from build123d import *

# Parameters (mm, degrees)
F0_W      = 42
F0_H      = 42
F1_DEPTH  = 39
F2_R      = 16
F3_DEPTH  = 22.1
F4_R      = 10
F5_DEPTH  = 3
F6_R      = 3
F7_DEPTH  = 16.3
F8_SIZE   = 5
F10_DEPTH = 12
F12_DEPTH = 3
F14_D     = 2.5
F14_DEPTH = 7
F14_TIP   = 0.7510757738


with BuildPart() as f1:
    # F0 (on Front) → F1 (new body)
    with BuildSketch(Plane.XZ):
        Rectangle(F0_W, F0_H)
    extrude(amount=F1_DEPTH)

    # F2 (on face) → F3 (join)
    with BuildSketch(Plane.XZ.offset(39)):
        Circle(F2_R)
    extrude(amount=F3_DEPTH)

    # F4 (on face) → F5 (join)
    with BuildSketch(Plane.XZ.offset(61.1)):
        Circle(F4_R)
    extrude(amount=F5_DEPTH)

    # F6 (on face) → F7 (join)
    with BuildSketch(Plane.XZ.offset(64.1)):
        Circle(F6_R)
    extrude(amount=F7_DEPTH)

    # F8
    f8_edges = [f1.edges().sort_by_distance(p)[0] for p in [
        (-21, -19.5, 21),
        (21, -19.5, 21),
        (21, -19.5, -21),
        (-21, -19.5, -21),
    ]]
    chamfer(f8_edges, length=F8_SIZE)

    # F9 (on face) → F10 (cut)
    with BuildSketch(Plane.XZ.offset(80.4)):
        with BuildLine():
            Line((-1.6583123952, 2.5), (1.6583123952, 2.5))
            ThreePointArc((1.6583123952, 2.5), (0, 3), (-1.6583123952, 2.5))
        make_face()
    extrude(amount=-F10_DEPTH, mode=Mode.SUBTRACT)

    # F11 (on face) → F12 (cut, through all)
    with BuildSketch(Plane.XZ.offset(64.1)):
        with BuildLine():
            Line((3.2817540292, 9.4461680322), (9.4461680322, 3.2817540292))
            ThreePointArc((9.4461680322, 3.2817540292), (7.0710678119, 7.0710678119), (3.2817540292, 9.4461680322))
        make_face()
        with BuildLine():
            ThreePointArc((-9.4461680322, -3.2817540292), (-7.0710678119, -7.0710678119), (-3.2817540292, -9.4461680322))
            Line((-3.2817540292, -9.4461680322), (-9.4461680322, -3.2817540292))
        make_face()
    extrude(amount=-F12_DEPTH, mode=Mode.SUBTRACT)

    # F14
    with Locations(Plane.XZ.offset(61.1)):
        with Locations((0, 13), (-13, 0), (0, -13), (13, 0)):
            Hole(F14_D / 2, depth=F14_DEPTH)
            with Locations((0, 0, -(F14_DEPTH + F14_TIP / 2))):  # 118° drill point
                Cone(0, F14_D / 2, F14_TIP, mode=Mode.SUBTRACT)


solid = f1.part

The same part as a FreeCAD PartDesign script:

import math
import FreeCAD as App
import Part
import Sketcher
Q = App.Units.Quantity


def edges_at(feature, points):
    """Names of the edges that pass closest to the given points."""
    edges = feature.Shape.Edges
    near = lambda p: min(range(len(edges)), key=lambda i: edges[i].distToShape(Part.Vertex(*p))[0])
    return sorted({f"Edge{near(p) + 1}" for p in points})


def add_polygon(sketch, points):
    """Adds a closed chain of lines whose ends are joined by coincident constraints."""
    first, n = sketch.GeometryCount, len(points)
    for a, b in zip(points, points[1:] + points[:1]):
        sketch.addGeometry(Part.LineSegment(App.Vector(*a, 0), App.Vector(*b, 0)), False)
    for i in range(n):
        sketch.addConstraint(Sketcher.Constraint("Coincident", first + i, 2, first + (i + 1) % n, 1))

doc = App.newDocument("Part")
body = doc.addObject("PartDesign::Body", "Body")

# Sketch on XZ plane
sketch1 = body.newObject("Sketcher::SketchObject", "Sketch")
sketch1.AttachmentSupport = (doc.getObject("XZ_Plane"), [""])
sketch1.MapMode = "FlatFace"
add_polygon(sketch1, [(-21, 21), (-21, -21), (21, -21), (21, 21)])  # lines 0-3
sketch1.addConstraint(Sketcher.Constraint("Vertical", 0))
sketch1.addConstraint(Sketcher.Constraint("Horizontal", 1))
sketch1.addConstraint(Sketcher.Constraint("Vertical", 2))
sketch1.addConstraint(Sketcher.Constraint("Horizontal", 3))
sketch1.addConstraint(Sketcher.Constraint("Symmetric", 0, 2, 2, 2, -1, 1))
sketch1.addConstraint(Sketcher.Constraint("Equal", 3, 0))
sketch1.addConstraint(Sketcher.Constraint("DistanceX", 1, 1, 1, 2, 42.0))
pad1 = body.newObject("PartDesign::Pad", "Pad")
pad1.Profile = sketch1
pad1.Length = 39

# Sketch on XZ plane
sketch2 = body.newObject("Sketcher::SketchObject", "Sketch001")
sketch2.AttachmentSupport = (doc.getObject("XZ_Plane"), [""])
sketch2.MapMode = "FlatFace"
sketch2.AttachmentOffset = App.Placement(App.Vector(0, 0, 39), App.Rotation())
sketch2.addGeometry(Part.Circle(App.Vector(0, 0, 0), App.Vector(0, 0, 1), 16), False)
sketch2.addConstraint(Sketcher.Constraint("Coincident", 0, 3, -1, 1))
sketch2.addConstraint(Sketcher.Constraint("Diameter", 0, 32.0))
pad2 = body.newObject("PartDesign::Pad", "Pad001")
pad2.Profile = sketch2
pad2.Length = 22.1

# Sketch on XZ plane
sketch3 = body.newObject("Sketcher::SketchObject", "Sketch002")
sketch3.AttachmentSupport = (doc.getObject("XZ_Plane"), [""])
sketch3.MapMode = "FlatFace"
sketch3.AttachmentOffset = App.Placement(App.Vector(0, 0, 61.1), App.Rotation())
sketch3.addGeometry(Part.Circle(App.Vector(0, 0, 0), App.Vector(0, 0, 1), 10), False)
sketch3.addConstraint(Sketcher.Constraint("Coincident", 0, 3, -1, 1))
sketch3.addConstraint(Sketcher.Constraint("Diameter", 0, 20.0))
pad3 = body.newObject("PartDesign::Pad", "Pad002")
pad3.Profile = sketch3
pad3.Length = 3

# Sketch on XZ plane
sketch4 = body.newObject("Sketcher::SketchObject", "Sketch003")
sketch4.AttachmentSupport = (doc.getObject("XZ_Plane"), [""])
sketch4.MapMode = "FlatFace"
sketch4.AttachmentOffset = App.Placement(App.Vector(0, 0, 64.1), App.Rotation())
sketch4.addGeometry(Part.Circle(App.Vector(0, 0, 0), App.Vector(0, 0, 1), 3), False)
sketch4.addConstraint(Sketcher.Constraint("Coincident", 0, 3, -1, 1))
sketch4.addConstraint(Sketcher.Constraint("Diameter", 0, 6.0))
pad4 = body.newObject("PartDesign::Pad", "Pad003")
pad4.Profile = sketch4
pad4.Length = 16.3
doc.recompute()

chamfer = body.newObject("PartDesign::Chamfer", "Chamfer")
chamfer.Base = (pad4, edges_at(pad4, [
    (-21, -19.5, 21),
    (21, -19.5, 21),
    (21, -19.5, -21),
    (-21, -19.5, -21),
]))
chamfer.Size = 5

# Sketch on XZ plane
sketch5 = body.newObject("Sketcher::SketchObject", "Sketch004")
sketch5.AttachmentSupport = (doc.getObject("XZ_Plane"), [""])
sketch5.MapMode = "FlatFace"
sketch5.AttachmentOffset = App.Placement(App.Vector(0, 0, 80.4), App.Rotation())
sketch5.addGeometry(Part.LineSegment(App.Vector(-1.658312, 2.5, 0), App.Vector(1.658312, 2.5, 0)), False)
sketch5.addGeometry(Part.ArcOfCircle(Part.Circle(App.Vector(0, 0, 0), App.Vector(0, 0, 1), 3), math.radians(56.44269), math.radians(123.55731)), False)
sketch5.addConstraint(Sketcher.Constraint("Coincident", 0, 1, 1, 2))
sketch5.addConstraint(Sketcher.Constraint("Coincident", 1, 1, 0, 2))
sketch5.addConstraint(Sketcher.Constraint("Horizontal", 0))
sketch5.addConstraint(Sketcher.Constraint("Coincident", 1, 3, -1, 1))
sketch5.addConstraint(Sketcher.Constraint("Radius", 1, 3.0))
sketch5.addConstraint(Sketcher.Constraint("DistanceY", -1, 1, 0, 1, 2.5))
pocket1 = body.newObject("PartDesign::Pocket", "Pocket")
pocket1.Profile = sketch5
pocket1.Length = 12

# Sketch on XZ plane
sketch6 = body.newObject("Sketcher::SketchObject", "Sketch005")
sketch6.AttachmentSupport = (doc.getObject("XZ_Plane"), [""])
sketch6.MapMode = "FlatFace"
sketch6.AttachmentOffset = App.Placement(App.Vector(0, 0, 64.1), App.Rotation())
sketch6.addGeometry(Part.LineSegment(App.Vector(3.281754, 9.446168, 0), App.Vector(9.446168, 3.281754, 0)), False)
sketch6.addGeometry(Part.ArcOfCircle(Part.Circle(App.Vector(0, 0, 0), App.Vector(0, 0, 1), 10), math.radians(19.158067), math.radians(70.841933)), False)
sketch6.addGeometry(Part.ArcOfCircle(Part.Circle(App.Vector(0, 0, 0), App.Vector(0, 0, 1), 10), math.radians(-160.841933), math.radians(-109.158067)), False)
sketch6.addGeometry(Part.LineSegment(App.Vector(-3.281754, -9.446168, 0), App.Vector(-9.446168, -3.281754, 0)), False)
sketch6.addConstraint(Sketcher.Constraint("Coincident", 0, 1, 1, 2))
sketch6.addConstraint(Sketcher.Constraint("Coincident", 1, 1, 0, 2))
sketch6.addConstraint(Sketcher.Constraint("Coincident", 2, 1, 3, 2))
sketch6.addConstraint(Sketcher.Constraint("Coincident", 3, 1, 2, 2))
sketch6.addConstraint(Sketcher.Constraint("Coincident", 1, 3, -1, 1))
sketch6.addConstraint(Sketcher.Constraint("Coincident", 2, 3, -1, 1))
sketch6.addConstraint(Sketcher.Constraint("Equal", 1, 2))
sketch6.addConstraint(Sketcher.Constraint("Parallel", 0, 3))
sketch6.addConstraint(Sketcher.Constraint("Equal", 0, 3))
sketch6.addConstraint(Sketcher.Constraint("Radius", 1, 10.0))
sketch6.addConstraint(Sketcher.Constraint("Angle", 0, Q("-45 deg")))
sketch6.addConstraint(Sketcher.Constraint("DistanceY", -1, 1, 0, 1, 9.446168))
pocket2 = body.newObject("PartDesign::Pocket", "Pocket001")
pocket2.Profile = sketch6
pocket2.Length = 3

# Sketch on XZ plane
sketch7 = body.newObject("Sketcher::SketchObject", "Sketch006")
sketch7.AttachmentSupport = (doc.getObject("XZ_Plane"), [""])
sketch7.MapMode = "FlatFace"
sketch7.AttachmentOffset = App.Placement(App.Vector(0, 0, 61.1), App.Rotation())
sketch7.addGeometry(Part.Circle(App.Vector(0, 13, 0), App.Vector(0, 0, 1), 1.25), False)
sketch7.addGeometry(Part.Circle(App.Vector(-13, 0, 0), App.Vector(0, 0, 1), 1.25), False)
sketch7.addGeometry(Part.Circle(App.Vector(0, -13, 0), App.Vector(0, 0, 1), 1.25), False)
sketch7.addGeometry(Part.Circle(App.Vector(13, 0, 0), App.Vector(0, 0, 1), 1.25), False)
sketch7.addConstraint(Sketcher.Constraint("Equal", 0, 1))
sketch7.addConstraint(Sketcher.Constraint("Equal", 1, 2))
sketch7.addConstraint(Sketcher.Constraint("Equal", 2, 3))
sketch7.addConstraint(Sketcher.Constraint("Symmetric", 0, 3, 2, 3, -1, 1))
sketch7.addConstraint(Sketcher.Constraint("Symmetric", 1, 3, 3, 3, -1, 1))
sketch7.addConstraint(Sketcher.Constraint("PointOnObject", 0, 3, -2))
sketch7.addConstraint(Sketcher.Constraint("PointOnObject", 1, 3, -1))
sketch7.addConstraint(Sketcher.Constraint("Diameter", 0, 2.5))
sketch7.addConstraint(Sketcher.Constraint("DistanceY", -1, 1, 0, 3, 13.0))
sketch7.addConstraint(Sketcher.Constraint("DistanceX", 1, 3, -1, 1, 13.0))
doc.recompute()
hole = body.newObject("PartDesign::Hole", "Hole")
hole.Profile = sketch7
hole.ThreadType = "None"
hole.Diameter = 2.5
hole.DepthType = "Dimension"
hole.Depth = 7
hole.DrillPoint = "Angled"
hole.DrillPointAngle = 118

doc.recompute()
